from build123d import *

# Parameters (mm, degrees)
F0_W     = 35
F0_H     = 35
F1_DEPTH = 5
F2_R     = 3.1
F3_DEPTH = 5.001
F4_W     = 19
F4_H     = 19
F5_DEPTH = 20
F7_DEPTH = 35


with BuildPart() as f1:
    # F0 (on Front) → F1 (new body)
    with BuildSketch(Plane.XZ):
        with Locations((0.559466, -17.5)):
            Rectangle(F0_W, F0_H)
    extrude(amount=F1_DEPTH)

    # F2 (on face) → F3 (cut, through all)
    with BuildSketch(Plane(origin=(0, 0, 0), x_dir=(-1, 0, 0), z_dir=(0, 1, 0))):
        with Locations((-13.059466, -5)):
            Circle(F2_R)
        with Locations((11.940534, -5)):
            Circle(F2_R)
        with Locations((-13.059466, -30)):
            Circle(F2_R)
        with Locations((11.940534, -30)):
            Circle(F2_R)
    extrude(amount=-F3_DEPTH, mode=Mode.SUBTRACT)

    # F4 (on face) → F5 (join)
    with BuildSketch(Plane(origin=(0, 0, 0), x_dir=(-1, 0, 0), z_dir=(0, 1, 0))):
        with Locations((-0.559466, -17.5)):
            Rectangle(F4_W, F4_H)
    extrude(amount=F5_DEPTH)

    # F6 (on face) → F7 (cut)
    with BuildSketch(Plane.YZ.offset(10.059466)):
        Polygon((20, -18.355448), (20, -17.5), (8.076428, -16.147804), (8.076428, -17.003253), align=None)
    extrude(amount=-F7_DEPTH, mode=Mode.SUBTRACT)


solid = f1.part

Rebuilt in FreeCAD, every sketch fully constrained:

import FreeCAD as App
import Part
import Sketcher
Q = App.Units.Quantity


def add_polygon(sketch, points):
    """Adds a closed chain of lines whose ends are joined by coincident constraints."""
    first, n = sketch.GeometryCount, len(points)
    for a, b in zip(points, points[1:] + points[:1]):
        sketch.addGeometry(Part.LineSegment(App.Vector(*a, 0), App.Vector(*b, 0)), False)
    for i in range(n):
        sketch.addConstraint(Sketcher.Constraint("Coincident", first + i, 2, first + (i + 1) % n, 1))

doc = App.newDocument("Part")
body = doc.addObject("PartDesign::Body", "Body")

# Sketch on XZ plane
sketch1 = body.newObject("Sketcher::SketchObject", "Sketch")
sketch1.AttachmentSupport = (doc.getObject("XZ_Plane"), [""])
sketch1.MapMode = "FlatFace"
add_polygon(sketch1, [(-17, 0), (-17, -35), (18, -35), (18, 0)])  # lines 0-3
sketch1.addConstraint([
    Sketcher.Constraint("Vertical", 0),
    Sketcher.Constraint("Horizontal", 1),
    Sketcher.Constraint("Vertical", 2),
    Sketcher.Constraint("Horizontal", 3),
    Sketcher.Constraint("PointOnObject", 2, 2, -1),
    Sketcher.Constraint("Equal", 3, 0),
    Sketcher.Constraint("DistanceX", 1, 1, 1, 2, 35.0),
    Sketcher.Constraint("DistanceX", 0, 2, -1, 1, 16.940534),
])
pad1 = body.newObject("PartDesign::Pad", "Pad")
pad1.Profile = sketch1
pad1.Length = 5

# Sketch on XZ plane
sketch2 = body.newObject("Sketcher::SketchObject", "Sketch001")
sketch2.AttachmentSupport = (doc.getObject("XZ_Plane"), [""])
sketch2.MapMode = "FlatFace"
sketch2.addGeometry([
    Part.Circle(App.Vector(13.1, -5, 0), App.Vector(0, 0, 1), 3.1),
    Part.Circle(App.Vector(-11.9, -5, 0), App.Vector(0, 0, 1), 3.1),
    Part.Circle(App.Vector(13.1, -30, 0), App.Vector(0, 0, 1), 3.1),
    Part.Circle(App.Vector(-11.9, -30, 0), App.Vector(0, 0, 1), 3.1),
], False)
sketch2.addConstraint([
    Sketcher.Constraint("Equal", 0, 1),
    Sketcher.Constraint("Equal", 1, 2),
    Sketcher.Constraint("Equal", 2, 3),
    Sketcher.Constraint("Horizontal", 0, 3, 1, 3),
    Sketcher.Constraint("Horizontal", 2, 3, 3, 3),
    Sketcher.Constraint("Vertical", 0, 3, 2, 3),
    Sketcher.Constraint("Vertical", 1, 3, 3, 3),
    Sketcher.Constraint("Diameter", 0, 6.2),
    Sketcher.Constraint("DistanceY", 0, 3, -1, 1, 5.0),
    Sketcher.Constraint("DistanceY", 2, 3, -1, 1, 30.0),
    Sketcher.Constraint("DistanceX", 1, 3, 0, 3, 25.0),
    Sketcher.Constraint("DistanceX", -1, 1, 0, 3, 13.059466),
])
pocket1 = body.newObject("PartDesign::Pocket", "Pocket")
pocket1.Profile = sketch2
pocket1.Type = "ThroughAll"
pocket1.Reversed = True

# Sketch on XZ plane
sketch3 = body.newObject("Sketcher::SketchObject", "Sketch002")
sketch3.AttachmentSupport = (doc.getObject("XZ_Plane"), [""])
sketch3.MapMode = "FlatFace"
add_polygon(sketch3, [(10, -8), (10, -27), (-9, -27), (-9, -8)])  # lines 0-3
sketch3.addConstraint([
    Sketcher.Constraint("Vertical", 0),
    Sketcher.Constraint("Horizontal", 1),
    Sketcher.Constraint("Vertical", 2),
    Sketcher.Constraint("Horizontal", 3),
    Sketcher.Constraint("Equal", 3, 0),
    Sketcher.Constraint("DistanceX", 1, 2, 1, 1, 19.0),
    Sketcher.Constraint("DistanceY", 0, 2, -1, 1, 27.0),
    Sketcher.Constraint("DistanceX", -1, 1, 0, 2, 10.059466),
])
pad2 = body.newObject("PartDesign::Pad", "Pad001")
pad2.Profile = sketch3
pad2.Length = 20
pad2.Reversed = True

# Sketch on YZ plane
sketch4 = body.newObject("Sketcher::SketchObject", "Sketch003")
sketch4.AttachmentSupport = (doc.getObject("YZ_Plane"), [""])
sketch4.MapMode = "FlatFace"
sketch4.AttachmentOffset = App.Placement(App.Vector(0, 0, 10.059466), App.Rotation())
add_polygon(sketch4, [(20, -18.4), (20, -17.5), (8.1, -16.1), (8.1, -17)])  # lines 0-3
sketch4.addConstraint([
    Sketcher.Constraint("Vertical", 0),
    Sketcher.Constraint("Vertical", 2),
    Sketcher.Constraint("Parallel", 1, 3),
    Sketcher.Constraint("Distance", 1, 12.0),
    Sketcher.Constraint("DistanceX", -1, 1, 0, 2, 20.0),
    Sketcher.Constraint("DistanceY", 0, 2, -1, 1, 17.5),
    Sketcher.Constraint("Angle", 1, Q("173.529998 deg")),
    Sketcher.Constraint("DistanceY", 2, 2, 2, 1, 0.855449),
])
pocket2 = body.newObject("PartDesign::Pocket", "Pocket001")
pocket2.Profile = sketch4
pocket2.Length = 35

doc.recompute()
